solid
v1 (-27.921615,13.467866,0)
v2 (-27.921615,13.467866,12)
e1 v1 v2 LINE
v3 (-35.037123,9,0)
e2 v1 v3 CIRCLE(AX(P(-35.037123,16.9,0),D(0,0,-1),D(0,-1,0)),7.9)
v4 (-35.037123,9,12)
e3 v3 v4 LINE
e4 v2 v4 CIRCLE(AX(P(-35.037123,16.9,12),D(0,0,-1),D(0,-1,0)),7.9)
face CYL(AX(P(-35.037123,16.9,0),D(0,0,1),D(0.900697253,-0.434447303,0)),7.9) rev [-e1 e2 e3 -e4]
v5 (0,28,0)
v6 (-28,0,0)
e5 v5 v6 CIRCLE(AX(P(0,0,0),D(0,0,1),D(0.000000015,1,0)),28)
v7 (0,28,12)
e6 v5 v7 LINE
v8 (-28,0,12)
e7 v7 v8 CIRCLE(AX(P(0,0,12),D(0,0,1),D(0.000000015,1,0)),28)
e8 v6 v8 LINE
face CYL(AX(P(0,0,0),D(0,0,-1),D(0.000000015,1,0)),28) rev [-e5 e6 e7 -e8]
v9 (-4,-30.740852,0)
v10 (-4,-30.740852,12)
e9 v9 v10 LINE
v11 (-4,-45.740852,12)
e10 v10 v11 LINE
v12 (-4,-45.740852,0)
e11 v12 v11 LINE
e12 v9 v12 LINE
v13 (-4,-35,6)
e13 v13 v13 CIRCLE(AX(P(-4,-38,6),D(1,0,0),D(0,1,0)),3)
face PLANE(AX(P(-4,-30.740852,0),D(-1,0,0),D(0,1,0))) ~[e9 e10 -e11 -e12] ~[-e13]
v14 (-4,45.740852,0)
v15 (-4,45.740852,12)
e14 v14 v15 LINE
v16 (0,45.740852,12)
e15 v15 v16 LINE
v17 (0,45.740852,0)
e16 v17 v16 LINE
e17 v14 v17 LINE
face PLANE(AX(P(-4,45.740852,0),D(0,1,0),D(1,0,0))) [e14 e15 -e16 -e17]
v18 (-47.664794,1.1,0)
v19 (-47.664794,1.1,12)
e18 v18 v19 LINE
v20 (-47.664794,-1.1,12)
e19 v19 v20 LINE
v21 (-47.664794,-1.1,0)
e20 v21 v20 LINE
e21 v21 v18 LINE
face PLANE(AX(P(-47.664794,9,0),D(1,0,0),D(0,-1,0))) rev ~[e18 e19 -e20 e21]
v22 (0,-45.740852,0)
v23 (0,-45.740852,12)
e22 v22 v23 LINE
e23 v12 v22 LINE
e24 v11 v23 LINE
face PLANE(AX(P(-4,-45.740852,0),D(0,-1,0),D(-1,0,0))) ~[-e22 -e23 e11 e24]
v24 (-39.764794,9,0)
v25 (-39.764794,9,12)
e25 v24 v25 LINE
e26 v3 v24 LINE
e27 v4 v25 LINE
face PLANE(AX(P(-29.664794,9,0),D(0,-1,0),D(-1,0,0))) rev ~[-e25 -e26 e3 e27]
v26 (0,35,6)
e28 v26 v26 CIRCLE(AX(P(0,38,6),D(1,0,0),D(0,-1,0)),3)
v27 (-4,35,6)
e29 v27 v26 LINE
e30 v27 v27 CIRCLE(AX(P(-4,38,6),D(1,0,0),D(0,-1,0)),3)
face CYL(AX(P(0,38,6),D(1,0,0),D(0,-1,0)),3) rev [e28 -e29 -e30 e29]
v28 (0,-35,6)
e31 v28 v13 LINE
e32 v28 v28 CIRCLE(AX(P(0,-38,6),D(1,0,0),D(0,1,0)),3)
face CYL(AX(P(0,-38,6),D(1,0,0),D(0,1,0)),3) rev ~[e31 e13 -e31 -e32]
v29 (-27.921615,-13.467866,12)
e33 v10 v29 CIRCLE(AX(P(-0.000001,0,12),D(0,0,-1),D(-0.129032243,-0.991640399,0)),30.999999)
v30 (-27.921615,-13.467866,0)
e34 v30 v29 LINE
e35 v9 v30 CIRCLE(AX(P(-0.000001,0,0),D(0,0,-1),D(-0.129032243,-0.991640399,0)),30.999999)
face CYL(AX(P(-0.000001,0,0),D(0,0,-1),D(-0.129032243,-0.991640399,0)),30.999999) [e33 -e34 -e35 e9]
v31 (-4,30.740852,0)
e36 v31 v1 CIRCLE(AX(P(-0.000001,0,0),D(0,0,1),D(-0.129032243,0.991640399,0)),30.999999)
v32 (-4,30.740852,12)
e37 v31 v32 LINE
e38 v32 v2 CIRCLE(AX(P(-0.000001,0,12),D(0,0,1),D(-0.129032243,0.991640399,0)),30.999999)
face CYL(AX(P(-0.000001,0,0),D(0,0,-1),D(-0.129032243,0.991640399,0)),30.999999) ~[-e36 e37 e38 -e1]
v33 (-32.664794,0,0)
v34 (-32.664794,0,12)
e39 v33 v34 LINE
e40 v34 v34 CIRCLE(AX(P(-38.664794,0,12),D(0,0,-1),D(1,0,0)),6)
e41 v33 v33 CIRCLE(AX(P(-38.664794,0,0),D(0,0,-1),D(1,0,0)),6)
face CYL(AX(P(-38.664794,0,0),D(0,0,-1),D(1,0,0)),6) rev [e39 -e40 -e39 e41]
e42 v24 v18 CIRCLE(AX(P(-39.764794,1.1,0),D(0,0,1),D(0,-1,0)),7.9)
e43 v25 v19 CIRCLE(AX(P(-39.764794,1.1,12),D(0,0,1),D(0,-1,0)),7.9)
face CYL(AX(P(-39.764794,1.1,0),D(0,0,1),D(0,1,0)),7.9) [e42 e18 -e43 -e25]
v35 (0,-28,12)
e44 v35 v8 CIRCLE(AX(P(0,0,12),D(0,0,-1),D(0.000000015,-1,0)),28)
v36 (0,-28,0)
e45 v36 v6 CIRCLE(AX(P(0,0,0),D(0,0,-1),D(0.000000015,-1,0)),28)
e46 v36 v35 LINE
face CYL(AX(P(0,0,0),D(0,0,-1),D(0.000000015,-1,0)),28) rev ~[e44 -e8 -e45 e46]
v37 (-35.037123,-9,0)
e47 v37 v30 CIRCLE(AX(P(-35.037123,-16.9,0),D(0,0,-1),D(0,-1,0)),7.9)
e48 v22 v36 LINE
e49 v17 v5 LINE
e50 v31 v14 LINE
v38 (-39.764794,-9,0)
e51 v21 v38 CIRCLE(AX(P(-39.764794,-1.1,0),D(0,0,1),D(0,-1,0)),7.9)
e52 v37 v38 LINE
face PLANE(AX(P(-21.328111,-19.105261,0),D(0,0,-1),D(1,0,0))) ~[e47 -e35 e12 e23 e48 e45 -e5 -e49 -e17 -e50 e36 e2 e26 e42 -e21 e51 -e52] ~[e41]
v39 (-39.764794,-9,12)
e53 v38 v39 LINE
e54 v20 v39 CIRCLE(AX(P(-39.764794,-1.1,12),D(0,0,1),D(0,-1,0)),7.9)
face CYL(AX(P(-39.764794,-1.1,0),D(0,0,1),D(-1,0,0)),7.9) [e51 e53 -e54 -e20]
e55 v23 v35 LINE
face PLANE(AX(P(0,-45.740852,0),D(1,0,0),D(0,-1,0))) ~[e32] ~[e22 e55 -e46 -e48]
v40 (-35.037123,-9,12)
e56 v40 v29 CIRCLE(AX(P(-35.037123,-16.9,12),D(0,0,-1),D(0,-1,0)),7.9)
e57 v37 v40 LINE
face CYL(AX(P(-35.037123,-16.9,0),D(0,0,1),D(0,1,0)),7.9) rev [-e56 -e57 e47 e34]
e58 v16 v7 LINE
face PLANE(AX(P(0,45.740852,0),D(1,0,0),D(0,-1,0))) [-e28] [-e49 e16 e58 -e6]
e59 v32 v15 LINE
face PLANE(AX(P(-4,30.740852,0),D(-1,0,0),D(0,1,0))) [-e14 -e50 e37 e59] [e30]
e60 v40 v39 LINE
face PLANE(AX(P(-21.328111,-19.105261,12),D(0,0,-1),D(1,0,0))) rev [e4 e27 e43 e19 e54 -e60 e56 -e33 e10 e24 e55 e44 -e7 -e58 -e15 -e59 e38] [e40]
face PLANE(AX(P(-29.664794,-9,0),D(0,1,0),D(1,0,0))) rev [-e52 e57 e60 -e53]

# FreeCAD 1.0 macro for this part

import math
import FreeCAD as App
import Part
import Sketcher
from FreeCAD import Vector


def edges_at(feature, points):
    """Names of the edges that pass closest to the given points."""
    edges = feature.Shape.Edges
    near = lambda p: min(range(len(edges)), key=lambda i: edges[i].distToShape(Part.Vertex(*p))[0])
    return sorted({f"Edge{near(p) + 1}" for p in points})

doc = App.newDocument("Part")
body = doc.addObject("PartDesign::Body", "Body")

# Sketch on XY plane
sketch1 = doc.addObject("Sketcher::SketchObject", "Sketch")
body.addObject(sketch1)
sketch1.AttachmentSupport = (doc.XY_Plane, [""])
sketch1.MapMode = "FlatFace"
sketch1.addGeometry(Part.ArcOfCircle(Part.Circle(Vector(0, 0, 0), Vector(0, 0, 1), 28), math.radians(89.999999), math.radians(180.000001)), False)
sketch1.addGeometry(Part.LineSegment(Vector(0, 28, 0), Vector(0, 45.740852, 0)), False)
sketch1.addGeometry(Part.LineSegment(Vector(0, 45.740852, 0), Vector(-4, 45.740852, 0)), False)
sketch1.addGeometry(Part.LineSegment(Vector(-4, 45.740852, 0), Vector(-4, 30.740852, 0)), False)
sketch1.addGeometry(Part.ArcOfCircle(Part.Circle(Vector(-0.000001, 0, 0), Vector(0, 0, 1), 30.999999), math.radians(97.413673), math.radians(163.122731)), False)
sketch1.addGeometry(Part.LineSegment(Vector(-29.664794, 9, 0), Vector(-47.664794, 9, 0)), False)
sketch1.addGeometry(Part.LineSegment(Vector(-47.664794, 9, 0), Vector(-47.664794, 0, 0)), False)
sketch1.addGeometry(Part.LineSegment(Vector(-47.664794, 0, 0), Vector(-44.664794, 0, 0)), False)
sketch1.addGeometry(Part.ArcOfCircle(Part.Circle(Vector(-38.664794, 0, 0), Vector(0, 0, 1), 6), math.radians(0), math.radians(180)), False)
sketch1.addGeometry(Part.LineSegment(Vector(-32.664794, 0, 0), Vector(-28, 0, 0)), False)
sketch1.addConstraint(Sketcher.Constraint("Coincident", 0, 1, 1, 1))
sketch1.addConstraint(Sketcher.Constraint("Coincident", 1, 2, 2, 1))
sketch1.addConstraint(Sketcher.Constraint("Coincident", 2, 2, 3, 1))
sketch1.addConstraint(Sketcher.Constraint("Coincident", 3, 2, 4, 1))
sketch1.addConstraint(Sketcher.Constraint("Coincident", 4, 2, 5, 1))
sketch1.addConstraint(Sketcher.Constraint("Coincident", 5, 2, 6, 1))
sketch1.addConstraint(Sketcher.Constraint("Coincident", 6, 2, 7, 1))
sketch1.addConstraint(Sketcher.Constraint("Coincident", 7, 2, 8, 2))
sketch1.addConstraint(Sketcher.Constraint("Coincident", 8, 1, 9, 1))
sketch1.addConstraint(Sketcher.Constraint("Coincident", 9, 2, 0, 2))
sketch1.addConstraint(Sketcher.Constraint("Vertical", 1))
sketch1.addConstraint(Sketcher.Constraint("Horizontal", 2))
sketch1.addConstraint(Sketcher.Constraint("Vertical", 3))
sketch1.addConstraint(Sketcher.Constraint("Horizontal", 5))
sketch1.addConstraint(Sketcher.Constraint("Vertical", 6))
sketch1.addConstraint(Sketcher.Constraint("Horizontal", 7))
sketch1.addConstraint(Sketcher.Constraint("Horizontal", 9))
sketch1.addConstraint(Sketcher.Constraint("Coincident", 0, 3, -1, 1))
sketch1.addConstraint(Sketcher.Constraint("Coincident", 4, 3, -1, 1))
sketch1.addConstraint(Sketcher.Constraint("PointOnObject", 8, 3, -1))
sketch1.addConstraint(Sketcher.Constraint("PointOnObject", 0, 1, -2))
sketch1.addConstraint(Sketcher.Constraint("PointOnObject", 6, 2, -1))
sketch1.addConstraint(Sketcher.Constraint("PointOnObject", 8, 1, -1))
sketch1.addConstraint(Sketcher.Constraint("Radius", 0, 28.0))
sketch1.addConstraint(Sketcher.Constraint("Radius", 4, 30.999999))
sketch1.addConstraint(Sketcher.Constraint("Radius", 8, 6.0))
sketch1.addConstraint(Sketcher.Constraint("DistanceX", 2, 2, 2, 1, 4.0))
sketch1.addConstraint(Sketcher.Constraint("DistanceX", 5, 2, 5, 1, 18.0))
sketch1.addConstraint(Sketcher.Constraint("DistanceX", 7, 1, 7, 2, 3.0))
sketch1.addConstraint(Sketcher.Constraint("DistanceY", 3, 2, 3, 1, 15.0))
sketch1.addConstraint(Sketcher.Constraint("DistanceY", 6, 2, 6, 1, 9.0))
pad1 = doc.addObject("PartDesign::Pad", "Pad")
body.addObject(pad1)
pad1.Profile = sketch1
pad1.Length = 12

# Sketch on XY plane
sketch2 = doc.addObject("Sketcher::SketchObject", "Sketch001")
body.addObject(sketch2)
sketch2.AttachmentSupport = (doc.XY_Plane, [""])
sketch2.MapMode = "FlatFace"
sketch2.addGeometry(Part.ArcOfCircle(Part.Circle(Vector(0, 0, 0), Vector(0, 0, 1), 28), math.radians(89.999999), math.radians(180.000001)), False)
sketch2.addGeometry(Part.LineSegment(Vector(0, 28, 0), Vector(0, 45.740852, 0)), False)
sketch2.addGeometry(Part.LineSegment(Vector(0, 45.740852, 0), Vector(-4, 45.740852, 0)), False)
sketch2.addGeometry(Part.LineSegment(Vector(-4, 45.740852, 0), Vector(-4, 30.740852, 0)), False)
sketch2.addGeometry(Part.ArcOfCircle(Part.Circle(Vector(-0.000001, 0, 0), Vector(0, 0, 1), 30.999999), math.radians(97.413673), math.radians(163.122731)), False)
sketch2.addGeometry(Part.LineSegment(Vector(-29.664794, 9, 0), Vector(-47.664794, 9, 0)), False)
sketch2.addGeometry(Part.LineSegment(Vector(-47.664794, 9, 0), Vector(-47.664794, 0, 0)), False)
sketch2.addGeometry(Part.LineSegment(Vector(-47.664794, 0, 0), Vector(-44.664794, 0, 0)), False)
sketch2.addGeometry(Part.ArcOfCircle(Part.Circle(Vector(-38.664794, 0, 0), Vector(0, 0, 1), 6), math.radians(0), math.radians(180)), False)
sketch2.addGeometry(Part.LineSegment(Vector(-32.664794, 0, 0), Vector(-28, 0, 0)), False)
sketch2.addConstraint(Sketcher.Constraint("Coincident", 0, 1, 1, 1))
sketch2.addConstraint(Sketcher.Constraint("Coincident", 1, 2, 2, 1))
sketch2.addConstraint(Sketcher.Constraint("Coincident", 2, 2, 3, 1))
sketch2.addConstraint(Sketcher.Constraint("Coincident", 3, 2, 4, 1))
sketch2.addConstraint(Sketcher.Constraint("Coincident", 4, 2, 5, 1))
sketch2.addConstraint(Sketcher.Constraint("Coincident", 5, 2, 6, 1))
sketch2.addConstraint(Sketcher.Constraint("Coincident", 6, 2, 7, 1))
sketch2.addConstraint(Sketcher.Constraint("Coincident", 7, 2, 8, 2))
sketch2.addConstraint(Sketcher.Constraint("Coincident", 8, 1, 9, 1))
sketch2.addConstraint(Sketcher.Constraint("Coincident", 9, 2, 0, 2))
sketch2.addConstraint(Sketcher.Constraint("Vertical", 1))
sketch2.addConstraint(Sketcher.Constraint("Horizontal", 2))
sketch2.addConstraint(Sketcher.Constraint("Vertical", 3))
sketch2.addConstraint(Sketcher.Constraint("Horizontal", 5))
sketch2.addConstraint(Sketcher.Constraint("Vertical", 6))
sketch2.addConstraint(Sketcher.Constraint("Horizontal", 7))
sketch2.addConstraint(Sketcher.Constraint("Horizontal", 9))
sketch2.addConstraint(Sketcher.Constraint("Coincident", 0, 3, -1, 1))
sketch2.addConstraint(Sketcher.Constraint("Coincident", 4, 3, -1, 1))
sketch2.addConstraint(Sketcher.Constraint("PointOnObject", 8, 3, -1))
sketch2.addConstraint(Sketcher.Constraint("PointOnObject", 0, 1, -2))
sketch2.addConstraint(Sketcher.Constraint("PointOnObject", 6, 2, -1))
sketch2.addConstraint(Sketcher.Constraint("PointOnObject", 8, 1, -1))
sketch2.addConstraint(Sketcher.Constraint("Radius", 0, 28.0))
sketch2.addConstraint(Sketcher.Constraint("Radius", 4, 30.999999))
sketch2.addConstraint(Sketcher.Constraint("Radius", 8, 6.0))
sketch2.addConstraint(Sketcher.Constraint("DistanceX", 2, 2, 2, 1, 4.0))
sketch2.addConstraint(Sketcher.Constraint("DistanceX", 5, 2, 5, 1, 18.0))
sketch2.addConstraint(Sketcher.Constraint("DistanceX", 7, 1, 7, 2, 3.0))
sketch2.addConstraint(Sketcher.Constraint("DistanceY", 3, 2, 3, 1, 15.0))
sketch2.addConstraint(Sketcher.Constraint("DistanceY", 6, 2, 6, 1, 9.0))
pad2 = doc.addObject("PartDesign::Pad", "Pad001")
body.addObject(pad2)
pad2.Profile = sketch2
pad2.Length = 12
doc.recompute()

mirrored = doc.addObject("PartDesign::Mirrored", "Mirrored")
body.addObject(mirrored)
mirrored.Originals = [pad2]
mirrored.MirrorPlane = (doc.XZ_Plane, [""])
body.Tip = mirrored

# Sketch on YZ plane
sketch3 = doc.addObject("Sketcher::SketchObject", "Sketch002")
body.addObject(sketch3)
sketch3.AttachmentSupport = (doc.YZ_Plane, [""])
sketch3.MapMode = "FlatFace"
sketch3.addGeometry(Part.Circle(Vector(-38, 6, 0), Vector(0, 0, 1), 3), False)
sketch3.addConstraint(Sketcher.Constraint("Diameter", 0, 6.0))
sketch3.addConstraint(Sketcher.Constraint("DistanceX", 0, 3, -1, 1, 38.0))
sketch3.addConstraint(Sketcher.Constraint("DistanceY", -1, 1, 0, 3, 6.0))
pocket1 = doc.addObject("PartDesign::Pocket", "Pocket")
body.addObject(pocket1)
pocket1.Profile = sketch3
pocket1.Type = "ThroughAll"
pocket1.Midplane = True
doc.recompute()

mirrored2 = doc.addObject("PartDesign::Mirrored", "Mirrored001")
body.addObject(mirrored2)
mirrored2.Originals = [pocket1]
mirrored2.MirrorPlane = (doc.XZ_Plane, [""])
body.Tip = mirrored2
doc.recompute()

fillet = doc.addObject("PartDesign::Fillet", "Fillet")
body.addObject(fillet)
fillet.Base = (mirrored2, edges_at(mirrored2, [
    (-47.665, 9, 6),
    (-47.665, -9, 6),
    (-29.665, -9, 6),
    (-29.665, 9, 6),
]))
fillet.Radius = 7.9

doc.recompute()
